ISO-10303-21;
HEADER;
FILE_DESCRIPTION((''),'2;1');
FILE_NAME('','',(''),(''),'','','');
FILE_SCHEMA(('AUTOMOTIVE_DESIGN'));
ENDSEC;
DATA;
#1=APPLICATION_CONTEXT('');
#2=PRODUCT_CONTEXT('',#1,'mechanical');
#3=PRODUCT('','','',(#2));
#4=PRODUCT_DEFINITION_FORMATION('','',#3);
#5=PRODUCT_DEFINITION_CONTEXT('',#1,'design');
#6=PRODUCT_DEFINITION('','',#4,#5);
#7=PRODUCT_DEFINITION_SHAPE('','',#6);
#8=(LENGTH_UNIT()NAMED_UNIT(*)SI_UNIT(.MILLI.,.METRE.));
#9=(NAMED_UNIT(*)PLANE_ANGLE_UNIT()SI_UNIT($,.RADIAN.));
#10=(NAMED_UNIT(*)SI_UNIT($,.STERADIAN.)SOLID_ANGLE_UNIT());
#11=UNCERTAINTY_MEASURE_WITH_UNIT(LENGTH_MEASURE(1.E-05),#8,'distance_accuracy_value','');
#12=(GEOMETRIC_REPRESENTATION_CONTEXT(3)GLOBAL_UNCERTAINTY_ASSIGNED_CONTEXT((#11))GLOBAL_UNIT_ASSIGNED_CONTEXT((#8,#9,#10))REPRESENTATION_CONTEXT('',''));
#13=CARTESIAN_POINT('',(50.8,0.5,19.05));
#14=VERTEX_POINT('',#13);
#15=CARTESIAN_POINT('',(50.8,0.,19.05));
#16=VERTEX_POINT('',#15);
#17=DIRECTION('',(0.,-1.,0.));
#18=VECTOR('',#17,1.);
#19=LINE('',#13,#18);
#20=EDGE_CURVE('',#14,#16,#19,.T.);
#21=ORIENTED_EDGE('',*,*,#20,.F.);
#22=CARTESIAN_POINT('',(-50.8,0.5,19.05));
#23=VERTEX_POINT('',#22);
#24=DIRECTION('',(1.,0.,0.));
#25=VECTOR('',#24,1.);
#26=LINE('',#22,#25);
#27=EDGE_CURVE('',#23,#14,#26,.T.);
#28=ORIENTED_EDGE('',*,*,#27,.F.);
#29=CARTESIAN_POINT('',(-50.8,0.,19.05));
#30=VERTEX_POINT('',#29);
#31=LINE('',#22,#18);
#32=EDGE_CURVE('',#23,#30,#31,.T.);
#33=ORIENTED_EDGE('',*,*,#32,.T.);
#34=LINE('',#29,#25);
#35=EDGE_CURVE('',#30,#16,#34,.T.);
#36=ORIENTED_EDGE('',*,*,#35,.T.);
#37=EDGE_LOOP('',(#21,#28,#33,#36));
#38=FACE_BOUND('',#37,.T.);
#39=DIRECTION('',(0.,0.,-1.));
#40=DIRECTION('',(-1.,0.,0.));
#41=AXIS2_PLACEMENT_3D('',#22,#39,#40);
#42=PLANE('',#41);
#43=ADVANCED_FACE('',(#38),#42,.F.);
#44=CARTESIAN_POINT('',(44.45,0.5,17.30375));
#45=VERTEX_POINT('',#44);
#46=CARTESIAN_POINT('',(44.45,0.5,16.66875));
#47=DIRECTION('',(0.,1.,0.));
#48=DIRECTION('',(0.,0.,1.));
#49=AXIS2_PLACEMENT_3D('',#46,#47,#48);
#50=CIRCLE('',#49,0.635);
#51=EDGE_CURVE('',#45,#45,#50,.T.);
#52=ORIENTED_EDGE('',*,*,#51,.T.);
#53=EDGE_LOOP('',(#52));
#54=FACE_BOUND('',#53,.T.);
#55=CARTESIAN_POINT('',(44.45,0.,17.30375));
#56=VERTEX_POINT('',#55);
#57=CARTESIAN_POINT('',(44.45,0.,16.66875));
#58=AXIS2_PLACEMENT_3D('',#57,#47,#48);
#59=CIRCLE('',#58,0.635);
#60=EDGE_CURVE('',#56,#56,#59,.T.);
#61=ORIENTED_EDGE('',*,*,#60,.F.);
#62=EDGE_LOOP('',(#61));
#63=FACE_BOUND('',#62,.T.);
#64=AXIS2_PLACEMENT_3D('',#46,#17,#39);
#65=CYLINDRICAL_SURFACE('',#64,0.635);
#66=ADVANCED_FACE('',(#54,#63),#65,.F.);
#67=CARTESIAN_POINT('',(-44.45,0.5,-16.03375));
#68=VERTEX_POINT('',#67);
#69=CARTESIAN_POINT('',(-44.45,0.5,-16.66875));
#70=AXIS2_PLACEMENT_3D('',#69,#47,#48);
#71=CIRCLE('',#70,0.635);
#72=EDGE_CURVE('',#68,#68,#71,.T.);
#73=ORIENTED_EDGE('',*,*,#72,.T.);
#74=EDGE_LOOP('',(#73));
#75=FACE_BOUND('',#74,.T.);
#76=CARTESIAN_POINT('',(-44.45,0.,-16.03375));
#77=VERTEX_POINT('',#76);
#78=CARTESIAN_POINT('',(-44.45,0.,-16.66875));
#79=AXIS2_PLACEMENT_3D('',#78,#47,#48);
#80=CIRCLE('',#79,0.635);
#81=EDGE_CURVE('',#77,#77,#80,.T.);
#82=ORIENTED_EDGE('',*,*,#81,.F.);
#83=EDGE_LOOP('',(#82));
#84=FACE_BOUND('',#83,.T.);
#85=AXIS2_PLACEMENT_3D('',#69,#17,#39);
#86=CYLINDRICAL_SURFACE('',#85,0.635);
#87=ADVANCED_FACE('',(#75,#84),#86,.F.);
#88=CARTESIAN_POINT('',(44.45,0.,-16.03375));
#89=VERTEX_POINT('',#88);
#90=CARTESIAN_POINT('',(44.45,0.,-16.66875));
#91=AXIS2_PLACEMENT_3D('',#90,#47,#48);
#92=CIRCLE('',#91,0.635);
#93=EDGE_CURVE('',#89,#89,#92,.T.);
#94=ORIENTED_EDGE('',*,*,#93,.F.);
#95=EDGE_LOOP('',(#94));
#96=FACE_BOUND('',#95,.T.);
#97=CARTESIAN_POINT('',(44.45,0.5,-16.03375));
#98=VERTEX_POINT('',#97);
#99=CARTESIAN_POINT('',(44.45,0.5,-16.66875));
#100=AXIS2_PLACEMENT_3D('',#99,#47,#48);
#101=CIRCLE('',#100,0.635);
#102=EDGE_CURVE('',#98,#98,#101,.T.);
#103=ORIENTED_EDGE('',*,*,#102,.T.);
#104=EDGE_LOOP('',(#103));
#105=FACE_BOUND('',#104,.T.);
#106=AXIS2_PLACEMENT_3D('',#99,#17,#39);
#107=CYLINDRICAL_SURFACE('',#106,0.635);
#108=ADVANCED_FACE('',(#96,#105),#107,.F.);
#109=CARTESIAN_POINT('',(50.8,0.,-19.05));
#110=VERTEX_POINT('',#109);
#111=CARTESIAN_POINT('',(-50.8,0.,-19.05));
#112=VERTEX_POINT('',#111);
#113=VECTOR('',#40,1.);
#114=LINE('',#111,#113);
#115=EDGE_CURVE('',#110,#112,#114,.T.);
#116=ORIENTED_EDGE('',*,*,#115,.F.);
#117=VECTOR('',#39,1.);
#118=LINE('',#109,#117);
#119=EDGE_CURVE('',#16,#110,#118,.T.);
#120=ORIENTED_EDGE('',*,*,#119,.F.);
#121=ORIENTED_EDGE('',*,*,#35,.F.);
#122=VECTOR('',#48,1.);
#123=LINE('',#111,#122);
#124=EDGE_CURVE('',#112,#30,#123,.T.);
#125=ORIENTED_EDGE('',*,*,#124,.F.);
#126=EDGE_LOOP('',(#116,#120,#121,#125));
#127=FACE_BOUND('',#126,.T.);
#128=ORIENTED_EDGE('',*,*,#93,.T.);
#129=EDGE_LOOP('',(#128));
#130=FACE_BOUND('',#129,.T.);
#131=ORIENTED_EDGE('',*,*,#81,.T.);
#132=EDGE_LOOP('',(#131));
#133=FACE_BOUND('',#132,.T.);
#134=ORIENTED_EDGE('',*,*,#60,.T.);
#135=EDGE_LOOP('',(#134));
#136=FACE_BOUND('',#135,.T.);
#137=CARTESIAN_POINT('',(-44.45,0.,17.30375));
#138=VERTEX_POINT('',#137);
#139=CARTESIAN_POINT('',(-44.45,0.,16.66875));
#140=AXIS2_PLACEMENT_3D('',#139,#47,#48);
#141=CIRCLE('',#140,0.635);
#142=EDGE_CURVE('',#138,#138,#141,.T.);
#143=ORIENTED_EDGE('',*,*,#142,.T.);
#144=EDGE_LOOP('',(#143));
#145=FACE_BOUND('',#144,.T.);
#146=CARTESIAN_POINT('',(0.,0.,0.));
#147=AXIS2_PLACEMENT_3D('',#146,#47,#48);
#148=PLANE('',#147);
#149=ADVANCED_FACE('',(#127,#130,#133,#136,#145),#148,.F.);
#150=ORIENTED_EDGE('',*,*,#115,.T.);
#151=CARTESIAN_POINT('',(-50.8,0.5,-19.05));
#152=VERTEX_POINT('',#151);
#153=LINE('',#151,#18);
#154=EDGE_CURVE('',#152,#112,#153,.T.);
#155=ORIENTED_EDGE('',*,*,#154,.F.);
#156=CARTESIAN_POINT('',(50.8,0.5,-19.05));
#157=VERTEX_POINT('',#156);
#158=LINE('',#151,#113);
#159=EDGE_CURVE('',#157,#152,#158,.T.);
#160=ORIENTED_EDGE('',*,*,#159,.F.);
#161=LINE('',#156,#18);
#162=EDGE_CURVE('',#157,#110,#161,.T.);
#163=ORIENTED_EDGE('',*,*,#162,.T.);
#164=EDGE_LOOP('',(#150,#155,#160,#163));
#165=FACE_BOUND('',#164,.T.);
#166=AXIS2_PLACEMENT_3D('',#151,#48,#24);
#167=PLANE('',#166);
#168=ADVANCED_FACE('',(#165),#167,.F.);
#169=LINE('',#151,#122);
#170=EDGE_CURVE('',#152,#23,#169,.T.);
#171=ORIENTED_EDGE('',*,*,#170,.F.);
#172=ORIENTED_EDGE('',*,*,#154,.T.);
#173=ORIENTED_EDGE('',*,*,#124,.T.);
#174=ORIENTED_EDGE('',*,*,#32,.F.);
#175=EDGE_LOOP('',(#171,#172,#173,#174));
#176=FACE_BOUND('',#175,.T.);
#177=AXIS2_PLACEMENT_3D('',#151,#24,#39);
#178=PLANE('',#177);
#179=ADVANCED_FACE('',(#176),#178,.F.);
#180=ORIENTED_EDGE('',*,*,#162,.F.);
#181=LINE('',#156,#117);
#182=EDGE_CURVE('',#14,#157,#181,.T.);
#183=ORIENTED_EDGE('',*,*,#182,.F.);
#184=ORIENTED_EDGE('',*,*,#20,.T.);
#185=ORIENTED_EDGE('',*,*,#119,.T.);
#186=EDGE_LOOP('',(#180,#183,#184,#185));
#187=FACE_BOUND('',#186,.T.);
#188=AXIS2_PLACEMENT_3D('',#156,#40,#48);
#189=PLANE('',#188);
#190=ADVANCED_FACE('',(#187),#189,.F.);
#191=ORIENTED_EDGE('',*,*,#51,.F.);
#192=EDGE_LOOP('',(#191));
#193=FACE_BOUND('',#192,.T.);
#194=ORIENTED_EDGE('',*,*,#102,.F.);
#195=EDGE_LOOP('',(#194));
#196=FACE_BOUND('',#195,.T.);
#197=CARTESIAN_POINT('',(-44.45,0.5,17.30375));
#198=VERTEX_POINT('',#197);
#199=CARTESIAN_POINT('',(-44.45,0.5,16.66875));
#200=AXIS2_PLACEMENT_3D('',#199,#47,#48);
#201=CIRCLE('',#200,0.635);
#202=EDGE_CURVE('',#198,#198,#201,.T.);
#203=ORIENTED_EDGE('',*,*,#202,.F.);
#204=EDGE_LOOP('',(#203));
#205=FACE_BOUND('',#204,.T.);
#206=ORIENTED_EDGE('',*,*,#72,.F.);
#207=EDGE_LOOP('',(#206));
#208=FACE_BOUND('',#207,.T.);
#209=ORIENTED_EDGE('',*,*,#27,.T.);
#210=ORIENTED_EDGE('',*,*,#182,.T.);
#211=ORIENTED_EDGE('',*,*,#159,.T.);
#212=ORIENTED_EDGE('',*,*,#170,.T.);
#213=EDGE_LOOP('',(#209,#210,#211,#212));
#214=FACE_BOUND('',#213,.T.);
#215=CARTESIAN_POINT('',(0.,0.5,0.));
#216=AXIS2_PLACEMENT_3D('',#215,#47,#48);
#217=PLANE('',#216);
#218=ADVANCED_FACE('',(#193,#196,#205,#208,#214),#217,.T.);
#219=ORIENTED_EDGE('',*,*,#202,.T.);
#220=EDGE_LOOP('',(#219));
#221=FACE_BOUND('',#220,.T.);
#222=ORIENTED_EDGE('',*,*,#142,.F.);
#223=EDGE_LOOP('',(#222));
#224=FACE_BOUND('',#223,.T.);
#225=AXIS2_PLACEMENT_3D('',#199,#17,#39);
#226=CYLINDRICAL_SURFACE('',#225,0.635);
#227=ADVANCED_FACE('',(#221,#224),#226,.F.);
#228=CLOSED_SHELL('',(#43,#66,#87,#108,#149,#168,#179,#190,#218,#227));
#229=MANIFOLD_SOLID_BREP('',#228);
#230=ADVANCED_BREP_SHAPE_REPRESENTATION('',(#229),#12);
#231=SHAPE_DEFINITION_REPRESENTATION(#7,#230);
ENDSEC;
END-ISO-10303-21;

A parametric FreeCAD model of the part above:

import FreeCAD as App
import Part
import Sketcher

V = App.Vector
Q = App.Units.Quantity

doc = App.newDocument("Part")
params = doc.addObject("Spreadsheet::Sheet", "Params")
for row, (alias, value) in enumerate([
    ("sketch1_diameter", "0.05 in"),
    ("sketch1_width", "4 in"),
    ("sketch1_height", "1.5 in"),
    ("pad1_length", "0.5 mm"),
], start=1):
    params.set(f"A{row}", alias)
    params.set(f"B{row}", "=" + value)
    params.setAlias(f"B{row}", alias)

body = doc.addObject("PartDesign::Body", "Body")

sketch1 = body.newObject("Sketcher::SketchObject", "Sketch")
sketch1.AttachmentSupport = (doc.getObject("XZ_Plane"), [""])
sketch1.MapMode = "FlatFace"
sketch1.addGeometry(Part.LineSegment(V(-50.8, -19.05, 0), V(-50.8, 19.05, 0)), False)
sketch1.addGeometry(Part.LineSegment(V(-50.8, 19.05, 0), V(50.8, 19.05, 0)), False)
sketch1.addGeometry(Part.LineSegment(V(50.8, 19.05, 0), V(50.8, -19.05, 0)), False)
sketch1.addGeometry(Part.LineSegment(V(50.8, -19.05, 0), V(-50.8, -19.05, 0)), False)
sketch1.addGeometry(Part.Circle(V(-44.45, 16.66875, 0), V(0, 0, 1), 0.635), False)
sketch1.addGeometry(Part.Circle(V(44.45, 16.66875, 0), V(0, 0, 1), 0.635), False)
sketch1.addGeometry(Part.Circle(V(-44.45, -16.66875, 0), V(0, 0, 1), 0.635), False)
sketch1.addGeometry(Part.Circle(V(44.45, -16.66875, 0), V(0, 0, 1), 0.635), False)
sketch1.addConstraint(Sketcher.Constraint("Coincident", 0, 2, 1, 1))
sketch1.addConstraint(Sketcher.Constraint("Coincident", 1, 2, 2, 1))
sketch1.addConstraint(Sketcher.Constraint("Coincident", 2, 2, 3, 1))
sketch1.addConstraint(Sketcher.Constraint("Coincident", 3, 2, 0, 1))
sketch1.addConstraint(Sketcher.Constraint("Vertical", 0))
sketch1.addConstraint(Sketcher.Constraint("Horizontal", 1))
sketch1.addConstraint(Sketcher.Constraint("Vertical", 2))
sketch1.addConstraint(Sketcher.Constraint("Horizontal", 3))
sketch1.addConstraint(Sketcher.Constraint("Equal", 4, 5))
sketch1.addConstraint(Sketcher.Constraint("Equal", 5, 6))
sketch1.addConstraint(Sketcher.Constraint("Equal", 6, 7))
sketch1.addConstraint(Sketcher.Constraint("Symmetric", 5, 3, 6, 3, -1, 1))
sketch1.addConstraint(Sketcher.Constraint("Symmetric", 4, 3, 7, 3, -1, 1))
sketch1.addConstraint(Sketcher.Constraint("Symmetric", 0, 2, 2, 2, -1, 1))
sketch1.addConstraint(Sketcher.Constraint("Symmetric", 4, 3, 5, 3, -2))
sketch1.addConstraint(Sketcher.Constraint("Diameter", 4, Q("0.05 in")))
sketch1.addConstraint(Sketcher.Constraint("DistanceX", 1, 1, 1, 2, Q("4 in")))
sketch1.addConstraint(Sketcher.Constraint("DistanceY", 0, 1, 0, 2, Q("1.5 in")))
sketch1.addConstraint(Sketcher.Constraint("DistanceX", 4, 3, 5, 3, Q("3.5 in")))
sketch1.addConstraint(Sketcher.Constraint("DistanceY", -1, 1, 4, 3, Q("0.65625 in")))
sketch1.setExpression("Constraints[15]", "Params.sketch1_diameter")
sketch1.setExpression("Constraints[16]", "Params.sketch1_width")
sketch1.setExpression("Constraints[17]", "Params.sketch1_height")
pad1 = body.newObject("PartDesign::Pad", "Pad")
pad1.Profile = sketch1
pad1.setExpression("Length", "Params.pad1_length")
pad1.Reversed = True

doc.recompute()
